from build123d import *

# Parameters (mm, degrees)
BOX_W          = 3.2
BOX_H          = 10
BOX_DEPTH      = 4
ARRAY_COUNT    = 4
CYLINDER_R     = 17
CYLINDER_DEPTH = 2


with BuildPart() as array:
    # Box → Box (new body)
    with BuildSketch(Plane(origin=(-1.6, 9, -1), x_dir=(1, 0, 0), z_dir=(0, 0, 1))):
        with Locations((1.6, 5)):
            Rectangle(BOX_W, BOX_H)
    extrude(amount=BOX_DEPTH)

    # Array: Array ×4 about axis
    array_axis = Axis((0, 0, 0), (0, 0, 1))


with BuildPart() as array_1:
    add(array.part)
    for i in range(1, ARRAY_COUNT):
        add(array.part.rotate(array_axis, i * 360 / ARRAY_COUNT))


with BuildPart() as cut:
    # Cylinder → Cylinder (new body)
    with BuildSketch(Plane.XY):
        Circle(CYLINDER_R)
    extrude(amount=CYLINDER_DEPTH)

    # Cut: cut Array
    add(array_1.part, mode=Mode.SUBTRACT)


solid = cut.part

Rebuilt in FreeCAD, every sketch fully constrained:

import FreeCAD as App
import Part
import Sketcher
from FreeCAD import Vector


def add_polygon(sketch, points):
    """Adds a closed chain of lines whose ends are joined by coincident constraints."""
    first, n = sketch.GeometryCount, len(points)
    for a, b in zip(points, points[1:] + points[:1]):
        sketch.addGeometry(Part.LineSegment(App.Vector(*a, 0), App.Vector(*b, 0)), False)
    for i in range(n):
        sketch.addConstraint(Sketcher.Constraint("Coincident", first + i, 2, first + (i + 1) % n, 1))

doc = App.newDocument("Part")
body = doc.addObject("PartDesign::Body", "Body")

# Sketch on XY plane
sketch1 = body.newObject("Sketcher::SketchObject", "Sketch")
sketch1.AttachmentSupport = (doc.getObject("XY_Plane"), [""])
sketch1.MapMode = "FlatFace"
sketch1.AttachmentOffset = App.Placement(Vector(0, 0, -1), App.Rotation())
add_polygon(sketch1, [(-1.6, 19), (-1.6, 9), (1.6, 9), (1.6, 19)])  # lines 0-3
sketch1.addConstraint(Sketcher.Constraint("Vertical", 0))
sketch1.addConstraint(Sketcher.Constraint("Horizontal", 1))
sketch1.addConstraint(Sketcher.Constraint("Vertical", 2))
sketch1.addConstraint(Sketcher.Constraint("Horizontal", 3))
sketch1.addConstraint(Sketcher.Constraint("DistanceY", 0, 2, 0, 1, 10.0))
sketch1.addConstraint(Sketcher.Constraint("DistanceX", 1, 1, 1, 2, 3.2))
sketch1.addConstraint(Sketcher.Constraint("DistanceY", -1, 1, 0, 2, 9.0))
sketch1.addConstraint(Sketcher.Constraint("DistanceX", 0, 2, -1, 1, 1.6))
pad1 = body.newObject("PartDesign::Pad", "Pad")
pad1.Profile = sketch1
pad1.Length = 4
body2 = doc.addObject("PartDesign::Body", "Body001")
body2.AllowCompound = True
doc.recompute()

body2.BaseFeature = body
doc.recompute()

body3 = doc.addObject("PartDesign::Body", "Body002")
body3.BaseFeature = body
body3.Placement = App.Placement(Vector(0, 0, 0), App.Rotation(Vector(0, 0, 1), 90))
boolean = body2.newObject("PartDesign::Boolean", "Boolean")
boolean.Type = "Fuse"
boolean.addObjects([body3])
doc.recompute()

body4 = doc.addObject("PartDesign::Body", "Body003")
body4.BaseFeature = body
body4.Placement = App.Placement(Vector(0, 0, 0), App.Rotation(Vector(0, 0, 1), 180))
boolean2 = body2.newObject("PartDesign::Boolean", "Boolean001")
boolean2.Type = "Fuse"
boolean2.addObjects([body4])
doc.recompute()

body.Placement = App.Placement(Vector(0, 0, 0), App.Rotation(Vector(0, 0, 1), 270))
boolean3 = body2.newObject("PartDesign::Boolean", "Boolean002")
boolean3.Type = "Fuse"
boolean3.addObjects([body])
body5 = doc.addObject("PartDesign::Body", "Body004")

# Sketch on XY plane
sketch2 = body5.newObject("Sketcher::SketchObject", "Sketch001")
sketch2.AttachmentSupport = (doc.getObject("XY_Plane004"), [""])
sketch2.MapMode = "FlatFace"
sketch2.addGeometry(Part.Circle(Vector(0, 0, 0), Vector(0, 0, 1), 17), False)
sketch2.addConstraint(Sketcher.Constraint("Coincident", 0, 3, -1, 1))
sketch2.addConstraint(Sketcher.Constraint("Diameter", 0, 34.0))
pad2 = body5.newObject("PartDesign::Pad", "Pad001")
pad2.Profile = sketch2
pad2.Length = 2
doc.recompute()

boolean4 = body5.newObject("PartDesign::Boolean", "Boolean003")
boolean4.Type = "Cut"
boolean4.addObjects([body2])

doc.recompute()
